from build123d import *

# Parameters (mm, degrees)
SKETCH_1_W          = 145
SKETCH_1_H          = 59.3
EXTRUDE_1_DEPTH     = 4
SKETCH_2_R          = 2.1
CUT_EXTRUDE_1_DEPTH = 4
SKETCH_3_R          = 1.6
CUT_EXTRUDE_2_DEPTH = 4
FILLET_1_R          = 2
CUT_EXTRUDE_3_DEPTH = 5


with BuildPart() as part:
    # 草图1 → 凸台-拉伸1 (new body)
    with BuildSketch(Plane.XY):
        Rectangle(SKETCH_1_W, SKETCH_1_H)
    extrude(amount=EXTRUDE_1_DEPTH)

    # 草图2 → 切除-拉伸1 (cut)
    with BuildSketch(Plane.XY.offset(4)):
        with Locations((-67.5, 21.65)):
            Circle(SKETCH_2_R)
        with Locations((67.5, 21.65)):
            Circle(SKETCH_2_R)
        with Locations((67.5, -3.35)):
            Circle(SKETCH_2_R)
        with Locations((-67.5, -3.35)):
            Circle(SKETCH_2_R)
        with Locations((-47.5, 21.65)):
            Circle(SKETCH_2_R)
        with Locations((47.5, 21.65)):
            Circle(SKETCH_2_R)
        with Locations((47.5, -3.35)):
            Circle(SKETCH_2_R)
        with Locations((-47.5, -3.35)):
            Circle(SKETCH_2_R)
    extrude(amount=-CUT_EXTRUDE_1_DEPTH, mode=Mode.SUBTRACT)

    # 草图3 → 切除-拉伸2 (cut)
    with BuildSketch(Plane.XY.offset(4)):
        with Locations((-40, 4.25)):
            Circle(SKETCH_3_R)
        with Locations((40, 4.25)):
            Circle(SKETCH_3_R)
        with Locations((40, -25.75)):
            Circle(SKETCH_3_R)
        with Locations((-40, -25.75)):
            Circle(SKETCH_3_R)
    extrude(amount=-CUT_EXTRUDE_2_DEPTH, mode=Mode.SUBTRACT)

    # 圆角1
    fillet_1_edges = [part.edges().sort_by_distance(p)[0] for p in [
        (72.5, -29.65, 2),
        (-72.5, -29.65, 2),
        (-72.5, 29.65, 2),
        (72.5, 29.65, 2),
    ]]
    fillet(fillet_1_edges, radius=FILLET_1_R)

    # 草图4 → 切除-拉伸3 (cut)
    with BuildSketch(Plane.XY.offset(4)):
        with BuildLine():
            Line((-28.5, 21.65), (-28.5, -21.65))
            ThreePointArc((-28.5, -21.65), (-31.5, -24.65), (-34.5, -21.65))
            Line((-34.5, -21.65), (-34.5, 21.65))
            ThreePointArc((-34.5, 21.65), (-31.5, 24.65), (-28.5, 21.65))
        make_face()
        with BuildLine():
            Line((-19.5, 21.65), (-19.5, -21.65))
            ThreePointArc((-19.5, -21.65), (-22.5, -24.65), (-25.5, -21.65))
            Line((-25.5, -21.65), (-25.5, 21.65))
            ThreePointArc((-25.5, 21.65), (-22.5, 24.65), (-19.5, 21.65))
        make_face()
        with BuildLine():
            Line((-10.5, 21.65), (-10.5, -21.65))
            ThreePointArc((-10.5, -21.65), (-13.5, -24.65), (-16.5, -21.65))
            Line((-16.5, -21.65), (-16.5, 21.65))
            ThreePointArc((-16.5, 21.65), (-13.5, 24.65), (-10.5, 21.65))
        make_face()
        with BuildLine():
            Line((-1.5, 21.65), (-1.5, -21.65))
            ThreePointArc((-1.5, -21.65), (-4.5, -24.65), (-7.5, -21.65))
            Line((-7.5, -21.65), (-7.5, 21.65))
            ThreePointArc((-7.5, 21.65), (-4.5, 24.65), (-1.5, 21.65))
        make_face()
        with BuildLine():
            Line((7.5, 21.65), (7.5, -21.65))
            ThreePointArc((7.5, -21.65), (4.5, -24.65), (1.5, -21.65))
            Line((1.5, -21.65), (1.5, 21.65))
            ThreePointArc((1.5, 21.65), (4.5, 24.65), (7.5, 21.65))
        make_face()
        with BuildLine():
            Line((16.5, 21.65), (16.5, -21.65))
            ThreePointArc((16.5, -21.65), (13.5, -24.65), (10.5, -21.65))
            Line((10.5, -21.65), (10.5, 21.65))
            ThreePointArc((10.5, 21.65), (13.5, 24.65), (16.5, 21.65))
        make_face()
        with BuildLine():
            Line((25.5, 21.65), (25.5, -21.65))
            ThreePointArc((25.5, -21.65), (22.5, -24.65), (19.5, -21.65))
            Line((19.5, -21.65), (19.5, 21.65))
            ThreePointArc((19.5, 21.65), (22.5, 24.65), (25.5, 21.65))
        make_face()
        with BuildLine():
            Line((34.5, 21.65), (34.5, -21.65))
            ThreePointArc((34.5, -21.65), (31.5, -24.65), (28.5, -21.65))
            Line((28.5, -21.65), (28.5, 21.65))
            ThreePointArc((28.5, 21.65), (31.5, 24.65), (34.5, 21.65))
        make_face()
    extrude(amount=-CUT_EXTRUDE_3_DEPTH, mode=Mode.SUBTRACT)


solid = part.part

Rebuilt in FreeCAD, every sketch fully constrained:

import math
import FreeCAD as App
import Part
import Sketcher
from FreeCAD import Vector
Q = App.Units.Quantity


def edges_at(feature, points):
    """Names of the edges that pass closest to the given points."""
    edges = feature.Shape.Edges
    near = lambda p: min(range(len(edges)), key=lambda i: edges[i].distToShape(Part.Vertex(*p))[0])
    return sorted({f"Edge{near(p) + 1}" for p in points})

doc = App.newDocument("Part")
body = doc.addObject("PartDesign::Body", "Body")

sketch1 = body.newObject("Sketcher::SketchObject", "Sketch")
sketch1.AttachmentSupport = (doc.getObject("XY_Plane"), [""])
sketch1.MapMode = "FlatFace"
sketch1.addGeometry([
    Part.LineSegment(Vector(-72.5, 29.65, 0), Vector(-72.5, -29.65, 0)),
    Part.LineSegment(Vector(-72.5, -29.65, 0), Vector(72.5, -29.65, 0)),
    Part.LineSegment(Vector(72.5, -29.65, 0), Vector(72.5, 29.65, 0)),
    Part.LineSegment(Vector(72.5, 29.65, 0), Vector(-72.5, 29.65, 0)),
], False)
sketch1.addConstraint([
    Sketcher.Constraint("Coincident", 0, 2, 1, 1),
    Sketcher.Constraint("Coincident", 1, 2, 2, 1),
    Sketcher.Constraint("Coincident", 2, 2, 3, 1),
    Sketcher.Constraint("Coincident", 3, 2, 0, 1),
    Sketcher.Constraint("Vertical", 0),
    Sketcher.Constraint("Horizontal", 1),
    Sketcher.Constraint("Vertical", 2),
    Sketcher.Constraint("Horizontal", 3),
    Sketcher.Constraint("Symmetric", 0, 2, 2, 2, -1, 1),
    Sketcher.Constraint("DistanceX", 1, 1, 1, 2, Q("145 mm")),
    Sketcher.Constraint("DistanceY", 0, 2, 0, 1, Q("59.3 mm")),
])
pad1 = body.newObject("PartDesign::Pad", "Pad")
pad1.Profile = sketch1
pad1.Length = 4

sketch2 = body.newObject("Sketcher::SketchObject", "Sketch001")
sketch2.AttachmentSupport = (doc.getObject("XY_Plane"), [""])
sketch2.MapMode = "FlatFace"
sketch2.AttachmentOffset = App.Placement(Vector(0, 0, 4), App.Rotation())
sketch2.addGeometry([
    Part.Circle(Vector(-67.5, 21.65, 0), Vector(0, 0, 1), 2.1),
    Part.Circle(Vector(67.5, 21.65, 0), Vector(0, 0, 1), 2.1),
    Part.Circle(Vector(67.5, -3.35, 0), Vector(0, 0, 1), 2.1),
    Part.Circle(Vector(-67.5, -3.35, 0), Vector(0, 0, 1), 2.1),
    Part.Circle(Vector(-47.5, 21.65, 0), Vector(0, 0, 1), 2.1),
    Part.Circle(Vector(47.5, 21.65, 0), Vector(0, 0, 1), 2.1),
    Part.Circle(Vector(47.5, -3.35, 0), Vector(0, 0, 1), 2.1),
    Part.Circle(Vector(-47.5, -3.35, 0), Vector(0, 0, 1), 2.1),
], False)
sketch2.addConstraint([
    Sketcher.Constraint("Equal", 0, 1),
    Sketcher.Constraint("Equal", 1, 2),
    Sketcher.Constraint("Equal", 2, 3),
    Sketcher.Constraint("Equal", 3, 4),
    Sketcher.Constraint("Equal", 4, 5),
    Sketcher.Constraint("Equal", 5, 6),
    Sketcher.Constraint("Equal", 6, 7),
    Sketcher.Constraint("Symmetric", 0, 3, 1, 3, -2),
    Sketcher.Constraint("Symmetric", 2, 3, 3, 3, -2),
    Sketcher.Constraint("Symmetric", 4, 3, 5, 3, -2),
    Sketcher.Constraint("Symmetric", 6, 3, 7, 3, -2),
    Sketcher.Constraint("Horizontal", 1, 3, 4, 3),
    Sketcher.Constraint("Horizontal", 3, 3, 6, 3),
    Sketcher.Constraint("Vertical", 1, 3, 2, 3),
    Sketcher.Constraint("Vertical", 5, 3, 6, 3),
    Sketcher.Constraint("Diameter", 0, Q("4.2 mm")),
    Sketcher.Constraint("DistanceX", 0, 3, 1, 3, Q("135 mm")),
    Sketcher.Constraint("DistanceY", 2, 3, 1, 3, Q("25 mm")),
    Sketcher.Constraint("DistanceX", 0, 3, 4, 3, Q("20 mm")),
    Sketcher.Constraint("DistanceY", -1, 1, 0, 3, Q("21.65 mm")),
])
pocket1 = body.newObject("PartDesign::Pocket", "Pocket")
pocket1.Profile = sketch2
pocket1.Length = 4

sketch3 = body.newObject("Sketcher::SketchObject", "Sketch002")
sketch3.AttachmentSupport = (doc.getObject("XY_Plane"), [""])
sketch3.MapMode = "FlatFace"
sketch3.AttachmentOffset = App.Placement(Vector(0, 0, 4), App.Rotation())
sketch3.addGeometry([
    Part.Circle(Vector(-40, 4.25, 0), Vector(0, 0, 1), 1.6),
    Part.Circle(Vector(40, 4.25, 0), Vector(0, 0, 1), 1.6),
    Part.Circle(Vector(40, -25.75, 0), Vector(0, 0, 1), 1.6),
    Part.Circle(Vector(-40, -25.75, 0), Vector(0, 0, 1), 1.6),
], False)
sketch3.addConstraint([
    Sketcher.Constraint("Equal", 0, 1),
    Sketcher.Constraint("Equal", 1, 2),
    Sketcher.Constraint("Equal", 2, 3),
    Sketcher.Constraint("Symmetric", 0, 3, 1, 3, -2),
    Sketcher.Constraint("Symmetric", 2, 3, 3, 3, -2),
    Sketcher.Constraint("Vertical", 1, 3, 2, 3),
    Sketcher.Constraint("Diameter", 0, Q("3.2 mm")),
    Sketcher.Constraint("DistanceX", 0, 3, -1, 1, Q("40 mm")),
    Sketcher.Constraint("DistanceY", 2, 3, 1, 3, Q("30 mm")),
    Sketcher.Constraint("DistanceY", -1, 1, 0, 3, Q("4.25 mm")),
])
pocket2 = body.newObject("PartDesign::Pocket", "Pocket001")
pocket2.Profile = sketch3
pocket2.Length = 4
doc.recompute()

fillet = body.newObject("PartDesign::Fillet", "Fillet")
fillet.Base = (pocket2, edges_at(pocket2, [
    (72.5, -29.65, 2),
    (-72.5, -29.65, 2),
    (-72.5, 29.65, 2),
    (72.5, 29.65, 2),
]))
fillet.Radius = 2

sketch4 = body.newObject("Sketcher::SketchObject", "Sketch003")
sketch4.AttachmentSupport = (doc.getObject("XY_Plane"), [""])
sketch4.MapMode = "FlatFace"
sketch4.AttachmentOffset = App.Placement(Vector(0, 0, 4), App.Rotation())
sketch4.addGeometry([
    Part.LineSegment(Vector(-28.5, -21.65, 0), Vector(-28.5, 21.65, 0)),
    Part.ArcOfCircle(Part.Circle(Vector(-31.5, 21.65, 0), Vector(0, 0, 1), 3), math.radians(0), math.radians(180)),
    Part.LineSegment(Vector(-34.5, 21.65, 0), Vector(-34.5, -21.65, 0)),
    Part.ArcOfCircle(Part.Circle(Vector(-31.5, -21.65, 0), Vector(0, 0, 1), 3), math.radians(180), math.radians(360)),
    Part.LineSegment(Vector(-19.5, -21.65, 0), Vector(-19.5, 21.65, 0)),
    Part.ArcOfCircle(Part.Circle(Vector(-22.5, 21.65, 0), Vector(0, 0, 1), 3), math.radians(0), math.radians(180)),
    Part.LineSegment(Vector(-25.5, 21.65, 0), Vector(-25.5, -21.65, 0)),
    Part.ArcOfCircle(Part.Circle(Vector(-22.5, -21.65, 0), Vector(0, 0, 1), 3), math.radians(180), math.radians(360)),
    Part.LineSegment(Vector(-10.5, -21.65, 0), Vector(-10.5, 21.65, 0)),
    Part.ArcOfCircle(Part.Circle(Vector(-13.5, 21.65, 0), Vector(0, 0, 1), 3), math.radians(0), math.radians(180)),
    Part.LineSegment(Vector(-16.5, 21.65, 0), Vector(-16.5, -21.65, 0)),
    Part.ArcOfCircle(Part.Circle(Vector(-13.5, -21.65, 0), Vector(0, 0, 1), 3), math.radians(180), math.radians(360)),
    Part.LineSegment(Vector(-1.5, -21.65, 0), Vector(-1.5, 21.65, 0)),
    Part.ArcOfCircle(Part.Circle(Vector(-4.5, 21.65, 0), Vector(0, 0, 1), 3), math.radians(0), math.radians(180)),
    Part.LineSegment(Vector(-7.5, 21.65, 0), Vector(-7.5, -21.65, 0)),
    Part.ArcOfCircle(Part.Circle(Vector(-4.5, -21.65, 0), Vector(0, 0, 1), 3), math.radians(180), math.radians(360)),
    Part.LineSegment(Vector(7.5, -21.65, 0), Vector(7.5, 21.65, 0)),
    Part.ArcOfCircle(Part.Circle(Vector(4.5, 21.65, 0), Vector(0, 0, 1), 3), math.radians(0), math.radians(180)),
    Part.LineSegment(Vector(1.5, 21.65, 0), Vector(1.5, -21.65, 0)),
    Part.ArcOfCircle(Part.Circle(Vector(4.5, -21.65, 0), Vector(0, 0, 1), 3), math.radians(180), math.radians(360)),
    Part.LineSegment(Vector(16.5, -21.65, 0), Vector(16.5, 21.65, 0)),
    Part.ArcOfCircle(Part.Circle(Vector(13.5, 21.65, 0), Vector(0, 0, 1), 3), math.radians(0), math.radians(180)),
    Part.LineSegment(Vector(10.5, 21.65, 0), Vector(10.5, -21.65, 0)),
    Part.ArcOfCircle(Part.Circle(Vector(13.5, -21.65, 0), Vector(0, 0, 1), 3), math.radians(180), math.radians(360)),
    Part.LineSegment(Vector(25.5, -21.65, 0), Vector(25.5, 21.65, 0)),
    Part.ArcOfCircle(Part.Circle(Vector(22.5, 21.65, 0), Vector(0, 0, 1), 3), math.radians(0), math.radians(180)),
    Part.LineSegment(Vector(19.5, 21.65, 0), Vector(19.5, -21.65, 0)),
    Part.ArcOfCircle(Part.Circle(Vector(22.5, -21.65, 0), Vector(0, 0, 1), 3), math.radians(180), math.radians(360)),
    Part.LineSegment(Vector(34.5, -21.65, 0), Vector(34.5, 21.65, 0)),
    Part.ArcOfCircle(Part.Circle(Vector(31.5, 21.65, 0), Vector(0, 0, 1), 3), math.radians(0), math.radians(180)),
    Part.LineSegment(Vector(28.5, 21.65, 0), Vector(28.5, -21.65, 0)),
    Part.ArcOfCircle(Part.Circle(Vector(31.5, -21.65, 0), Vector(0, 0, 1), 3), math.radians(180), math.radians(360)),
], False)
sketch4.addConstraint([
    Sketcher.Constraint("Tangent", 0, 2, 1, 1),
    Sketcher.Constraint("Tangent", 1, 2, 2, 1),
    Sketcher.Constraint("Tangent", 2, 2, 3, 1),
    Sketcher.Constraint("Tangent", 3, 2, 0, 1),
    Sketcher.Constraint("Tangent", 4, 2, 5, 1),
    Sketcher.Constraint("Tangent", 5, 2, 6, 1),
    Sketcher.Constraint("Tangent", 6, 2, 7, 1),
    Sketcher.Constraint("Tangent", 7, 2, 4, 1),
    Sketcher.Constraint("Tangent", 8, 2, 9, 1),
    Sketcher.Constraint("Tangent", 9, 2, 10, 1),
    Sketcher.Constraint("Tangent", 10, 2, 11, 1),
    Sketcher.Constraint("Tangent", 11, 2, 8, 1),
    Sketcher.Constraint("Tangent", 12, 2, 13, 1),
    Sketcher.Constraint("Tangent", 13, 2, 14, 1),
    Sketcher.Constraint("Tangent", 14, 2, 15, 1),
    Sketcher.Constraint("Tangent", 15, 2, 12, 1),
    Sketcher.Constraint("Tangent", 16, 2, 17, 1),
    Sketcher.Constraint("Tangent", 17, 2, 18, 1),
    Sketcher.Constraint("Tangent", 18, 2, 19, 1),
    Sketcher.Constraint("Tangent", 19, 2, 16, 1),
    Sketcher.Constraint("Tangent", 20, 2, 21, 1),
    Sketcher.Constraint("Tangent", 21, 2, 22, 1),
    Sketcher.Constraint("Tangent", 22, 2, 23, 1),
    Sketcher.Constraint("Tangent", 23, 2, 20, 1),
    Sketcher.Constraint("Tangent", 24, 2, 25, 1),
    Sketcher.Constraint("Tangent", 25, 2, 26, 1),
    Sketcher.Constraint("Tangent", 26, 2, 27, 1),
    Sketcher.Constraint("Tangent", 27, 2, 24, 1),
    Sketcher.Constraint("Tangent", 28, 2, 29, 1),
    Sketcher.Constraint("Tangent", 29, 2, 30, 1),
    Sketcher.Constraint("Tangent", 30, 2, 31, 1),
    Sketcher.Constraint("Tangent", 31, 2, 28, 1),
    Sketcher.Constraint("Vertical", 0),
    Sketcher.Constraint("Vertical", 2),
    Sketcher.Constraint("Vertical", 4),
    Sketcher.Constraint("Vertical", 6),
    Sketcher.Constraint("Vertical", 8),
    Sketcher.Constraint("Vertical", 10),
    Sketcher.Constraint("Vertical", 12),
    Sketcher.Constraint("Vertical", 14),
    Sketcher.Constraint("Vertical", 16),
    Sketcher.Constraint("Vertical", 18),
    Sketcher.Constraint("Vertical", 20),
    Sketcher.Constraint("Vertical", 22),
    Sketcher.Constraint("Vertical", 24),
    Sketcher.Constraint("Vertical", 26),
    Sketcher.Constraint("Vertical", 28),
    Sketcher.Constraint("Vertical", 30),
    Sketcher.Constraint("Equal", 3, 5),
    Sketcher.Constraint("Equal", 7, 9),
    Sketcher.Constraint("Equal", 11, 13),
    Sketcher.Constraint("Equal", 15, 17),
    Sketcher.Constraint("Equal", 19, 21),
    Sketcher.Constraint("Equal", 23, 25),
    Sketcher.Constraint("Equal", 27, 29),
    Sketcher.Constraint("Symmetric", 15, 3, 17, 3, -1, 1),
    Sketcher.Constraint("Symmetric", 11, 3, 21, 3, -1, 1),
    Sketcher.Constraint("Symmetric", 7, 3, 25, 3, -1, 1),
    Sketcher.Constraint("Symmetric", 3, 3, 29, 3, -1, 1),
    Sketcher.Constraint("Horizontal", 1, 3, 5, 3),
    Sketcher.Constraint("Horizontal", 3, 3, 7, 3),
    Sketcher.Constraint("Horizontal", 5, 3, 9, 3),
    Sketcher.Constraint("Horizontal", 7, 3, 11, 3),
    Sketcher.Constraint("Horizontal", 9, 3, 13, 3),
    Sketcher.Constraint("Horizontal", 11, 3, 15, 3),
    Sketcher.Constraint("Horizontal", 13, 3, 17, 3),
    Sketcher.Constraint("Horizontal", 15, 3, 19, 3),
    Sketcher.Constraint("Horizontal", 19, 3, 23, 3),
    Sketcher.Constraint("Horizontal", 23, 3, 27, 3),
    Sketcher.Constraint("Horizontal", 27, 3, 31, 3),
    Sketcher.Constraint("Radius", 1, Q("3 mm")),
    Sketcher.Constraint("DistanceY", 0, 1, 0, 2, Q("43.3 mm")),
    Sketcher.Constraint("DistanceX", 1, 3, 5, 3, Q("9 mm")),
    Sketcher.Constraint("DistanceX", 5, 3, 9, 3, Q("9 mm")),
    Sketcher.Constraint("DistanceX", 9, 3, 13, 3, Q("9 mm")),
    Sketcher.Constraint("DistanceX", 13, 3, 17, 3, Q("9 mm")),
])
pocket3 = body.newObject("PartDesign::Pocket", "Pocket002")
pocket3.Profile = sketch4
pocket3.Length = 5

doc.recompute()
